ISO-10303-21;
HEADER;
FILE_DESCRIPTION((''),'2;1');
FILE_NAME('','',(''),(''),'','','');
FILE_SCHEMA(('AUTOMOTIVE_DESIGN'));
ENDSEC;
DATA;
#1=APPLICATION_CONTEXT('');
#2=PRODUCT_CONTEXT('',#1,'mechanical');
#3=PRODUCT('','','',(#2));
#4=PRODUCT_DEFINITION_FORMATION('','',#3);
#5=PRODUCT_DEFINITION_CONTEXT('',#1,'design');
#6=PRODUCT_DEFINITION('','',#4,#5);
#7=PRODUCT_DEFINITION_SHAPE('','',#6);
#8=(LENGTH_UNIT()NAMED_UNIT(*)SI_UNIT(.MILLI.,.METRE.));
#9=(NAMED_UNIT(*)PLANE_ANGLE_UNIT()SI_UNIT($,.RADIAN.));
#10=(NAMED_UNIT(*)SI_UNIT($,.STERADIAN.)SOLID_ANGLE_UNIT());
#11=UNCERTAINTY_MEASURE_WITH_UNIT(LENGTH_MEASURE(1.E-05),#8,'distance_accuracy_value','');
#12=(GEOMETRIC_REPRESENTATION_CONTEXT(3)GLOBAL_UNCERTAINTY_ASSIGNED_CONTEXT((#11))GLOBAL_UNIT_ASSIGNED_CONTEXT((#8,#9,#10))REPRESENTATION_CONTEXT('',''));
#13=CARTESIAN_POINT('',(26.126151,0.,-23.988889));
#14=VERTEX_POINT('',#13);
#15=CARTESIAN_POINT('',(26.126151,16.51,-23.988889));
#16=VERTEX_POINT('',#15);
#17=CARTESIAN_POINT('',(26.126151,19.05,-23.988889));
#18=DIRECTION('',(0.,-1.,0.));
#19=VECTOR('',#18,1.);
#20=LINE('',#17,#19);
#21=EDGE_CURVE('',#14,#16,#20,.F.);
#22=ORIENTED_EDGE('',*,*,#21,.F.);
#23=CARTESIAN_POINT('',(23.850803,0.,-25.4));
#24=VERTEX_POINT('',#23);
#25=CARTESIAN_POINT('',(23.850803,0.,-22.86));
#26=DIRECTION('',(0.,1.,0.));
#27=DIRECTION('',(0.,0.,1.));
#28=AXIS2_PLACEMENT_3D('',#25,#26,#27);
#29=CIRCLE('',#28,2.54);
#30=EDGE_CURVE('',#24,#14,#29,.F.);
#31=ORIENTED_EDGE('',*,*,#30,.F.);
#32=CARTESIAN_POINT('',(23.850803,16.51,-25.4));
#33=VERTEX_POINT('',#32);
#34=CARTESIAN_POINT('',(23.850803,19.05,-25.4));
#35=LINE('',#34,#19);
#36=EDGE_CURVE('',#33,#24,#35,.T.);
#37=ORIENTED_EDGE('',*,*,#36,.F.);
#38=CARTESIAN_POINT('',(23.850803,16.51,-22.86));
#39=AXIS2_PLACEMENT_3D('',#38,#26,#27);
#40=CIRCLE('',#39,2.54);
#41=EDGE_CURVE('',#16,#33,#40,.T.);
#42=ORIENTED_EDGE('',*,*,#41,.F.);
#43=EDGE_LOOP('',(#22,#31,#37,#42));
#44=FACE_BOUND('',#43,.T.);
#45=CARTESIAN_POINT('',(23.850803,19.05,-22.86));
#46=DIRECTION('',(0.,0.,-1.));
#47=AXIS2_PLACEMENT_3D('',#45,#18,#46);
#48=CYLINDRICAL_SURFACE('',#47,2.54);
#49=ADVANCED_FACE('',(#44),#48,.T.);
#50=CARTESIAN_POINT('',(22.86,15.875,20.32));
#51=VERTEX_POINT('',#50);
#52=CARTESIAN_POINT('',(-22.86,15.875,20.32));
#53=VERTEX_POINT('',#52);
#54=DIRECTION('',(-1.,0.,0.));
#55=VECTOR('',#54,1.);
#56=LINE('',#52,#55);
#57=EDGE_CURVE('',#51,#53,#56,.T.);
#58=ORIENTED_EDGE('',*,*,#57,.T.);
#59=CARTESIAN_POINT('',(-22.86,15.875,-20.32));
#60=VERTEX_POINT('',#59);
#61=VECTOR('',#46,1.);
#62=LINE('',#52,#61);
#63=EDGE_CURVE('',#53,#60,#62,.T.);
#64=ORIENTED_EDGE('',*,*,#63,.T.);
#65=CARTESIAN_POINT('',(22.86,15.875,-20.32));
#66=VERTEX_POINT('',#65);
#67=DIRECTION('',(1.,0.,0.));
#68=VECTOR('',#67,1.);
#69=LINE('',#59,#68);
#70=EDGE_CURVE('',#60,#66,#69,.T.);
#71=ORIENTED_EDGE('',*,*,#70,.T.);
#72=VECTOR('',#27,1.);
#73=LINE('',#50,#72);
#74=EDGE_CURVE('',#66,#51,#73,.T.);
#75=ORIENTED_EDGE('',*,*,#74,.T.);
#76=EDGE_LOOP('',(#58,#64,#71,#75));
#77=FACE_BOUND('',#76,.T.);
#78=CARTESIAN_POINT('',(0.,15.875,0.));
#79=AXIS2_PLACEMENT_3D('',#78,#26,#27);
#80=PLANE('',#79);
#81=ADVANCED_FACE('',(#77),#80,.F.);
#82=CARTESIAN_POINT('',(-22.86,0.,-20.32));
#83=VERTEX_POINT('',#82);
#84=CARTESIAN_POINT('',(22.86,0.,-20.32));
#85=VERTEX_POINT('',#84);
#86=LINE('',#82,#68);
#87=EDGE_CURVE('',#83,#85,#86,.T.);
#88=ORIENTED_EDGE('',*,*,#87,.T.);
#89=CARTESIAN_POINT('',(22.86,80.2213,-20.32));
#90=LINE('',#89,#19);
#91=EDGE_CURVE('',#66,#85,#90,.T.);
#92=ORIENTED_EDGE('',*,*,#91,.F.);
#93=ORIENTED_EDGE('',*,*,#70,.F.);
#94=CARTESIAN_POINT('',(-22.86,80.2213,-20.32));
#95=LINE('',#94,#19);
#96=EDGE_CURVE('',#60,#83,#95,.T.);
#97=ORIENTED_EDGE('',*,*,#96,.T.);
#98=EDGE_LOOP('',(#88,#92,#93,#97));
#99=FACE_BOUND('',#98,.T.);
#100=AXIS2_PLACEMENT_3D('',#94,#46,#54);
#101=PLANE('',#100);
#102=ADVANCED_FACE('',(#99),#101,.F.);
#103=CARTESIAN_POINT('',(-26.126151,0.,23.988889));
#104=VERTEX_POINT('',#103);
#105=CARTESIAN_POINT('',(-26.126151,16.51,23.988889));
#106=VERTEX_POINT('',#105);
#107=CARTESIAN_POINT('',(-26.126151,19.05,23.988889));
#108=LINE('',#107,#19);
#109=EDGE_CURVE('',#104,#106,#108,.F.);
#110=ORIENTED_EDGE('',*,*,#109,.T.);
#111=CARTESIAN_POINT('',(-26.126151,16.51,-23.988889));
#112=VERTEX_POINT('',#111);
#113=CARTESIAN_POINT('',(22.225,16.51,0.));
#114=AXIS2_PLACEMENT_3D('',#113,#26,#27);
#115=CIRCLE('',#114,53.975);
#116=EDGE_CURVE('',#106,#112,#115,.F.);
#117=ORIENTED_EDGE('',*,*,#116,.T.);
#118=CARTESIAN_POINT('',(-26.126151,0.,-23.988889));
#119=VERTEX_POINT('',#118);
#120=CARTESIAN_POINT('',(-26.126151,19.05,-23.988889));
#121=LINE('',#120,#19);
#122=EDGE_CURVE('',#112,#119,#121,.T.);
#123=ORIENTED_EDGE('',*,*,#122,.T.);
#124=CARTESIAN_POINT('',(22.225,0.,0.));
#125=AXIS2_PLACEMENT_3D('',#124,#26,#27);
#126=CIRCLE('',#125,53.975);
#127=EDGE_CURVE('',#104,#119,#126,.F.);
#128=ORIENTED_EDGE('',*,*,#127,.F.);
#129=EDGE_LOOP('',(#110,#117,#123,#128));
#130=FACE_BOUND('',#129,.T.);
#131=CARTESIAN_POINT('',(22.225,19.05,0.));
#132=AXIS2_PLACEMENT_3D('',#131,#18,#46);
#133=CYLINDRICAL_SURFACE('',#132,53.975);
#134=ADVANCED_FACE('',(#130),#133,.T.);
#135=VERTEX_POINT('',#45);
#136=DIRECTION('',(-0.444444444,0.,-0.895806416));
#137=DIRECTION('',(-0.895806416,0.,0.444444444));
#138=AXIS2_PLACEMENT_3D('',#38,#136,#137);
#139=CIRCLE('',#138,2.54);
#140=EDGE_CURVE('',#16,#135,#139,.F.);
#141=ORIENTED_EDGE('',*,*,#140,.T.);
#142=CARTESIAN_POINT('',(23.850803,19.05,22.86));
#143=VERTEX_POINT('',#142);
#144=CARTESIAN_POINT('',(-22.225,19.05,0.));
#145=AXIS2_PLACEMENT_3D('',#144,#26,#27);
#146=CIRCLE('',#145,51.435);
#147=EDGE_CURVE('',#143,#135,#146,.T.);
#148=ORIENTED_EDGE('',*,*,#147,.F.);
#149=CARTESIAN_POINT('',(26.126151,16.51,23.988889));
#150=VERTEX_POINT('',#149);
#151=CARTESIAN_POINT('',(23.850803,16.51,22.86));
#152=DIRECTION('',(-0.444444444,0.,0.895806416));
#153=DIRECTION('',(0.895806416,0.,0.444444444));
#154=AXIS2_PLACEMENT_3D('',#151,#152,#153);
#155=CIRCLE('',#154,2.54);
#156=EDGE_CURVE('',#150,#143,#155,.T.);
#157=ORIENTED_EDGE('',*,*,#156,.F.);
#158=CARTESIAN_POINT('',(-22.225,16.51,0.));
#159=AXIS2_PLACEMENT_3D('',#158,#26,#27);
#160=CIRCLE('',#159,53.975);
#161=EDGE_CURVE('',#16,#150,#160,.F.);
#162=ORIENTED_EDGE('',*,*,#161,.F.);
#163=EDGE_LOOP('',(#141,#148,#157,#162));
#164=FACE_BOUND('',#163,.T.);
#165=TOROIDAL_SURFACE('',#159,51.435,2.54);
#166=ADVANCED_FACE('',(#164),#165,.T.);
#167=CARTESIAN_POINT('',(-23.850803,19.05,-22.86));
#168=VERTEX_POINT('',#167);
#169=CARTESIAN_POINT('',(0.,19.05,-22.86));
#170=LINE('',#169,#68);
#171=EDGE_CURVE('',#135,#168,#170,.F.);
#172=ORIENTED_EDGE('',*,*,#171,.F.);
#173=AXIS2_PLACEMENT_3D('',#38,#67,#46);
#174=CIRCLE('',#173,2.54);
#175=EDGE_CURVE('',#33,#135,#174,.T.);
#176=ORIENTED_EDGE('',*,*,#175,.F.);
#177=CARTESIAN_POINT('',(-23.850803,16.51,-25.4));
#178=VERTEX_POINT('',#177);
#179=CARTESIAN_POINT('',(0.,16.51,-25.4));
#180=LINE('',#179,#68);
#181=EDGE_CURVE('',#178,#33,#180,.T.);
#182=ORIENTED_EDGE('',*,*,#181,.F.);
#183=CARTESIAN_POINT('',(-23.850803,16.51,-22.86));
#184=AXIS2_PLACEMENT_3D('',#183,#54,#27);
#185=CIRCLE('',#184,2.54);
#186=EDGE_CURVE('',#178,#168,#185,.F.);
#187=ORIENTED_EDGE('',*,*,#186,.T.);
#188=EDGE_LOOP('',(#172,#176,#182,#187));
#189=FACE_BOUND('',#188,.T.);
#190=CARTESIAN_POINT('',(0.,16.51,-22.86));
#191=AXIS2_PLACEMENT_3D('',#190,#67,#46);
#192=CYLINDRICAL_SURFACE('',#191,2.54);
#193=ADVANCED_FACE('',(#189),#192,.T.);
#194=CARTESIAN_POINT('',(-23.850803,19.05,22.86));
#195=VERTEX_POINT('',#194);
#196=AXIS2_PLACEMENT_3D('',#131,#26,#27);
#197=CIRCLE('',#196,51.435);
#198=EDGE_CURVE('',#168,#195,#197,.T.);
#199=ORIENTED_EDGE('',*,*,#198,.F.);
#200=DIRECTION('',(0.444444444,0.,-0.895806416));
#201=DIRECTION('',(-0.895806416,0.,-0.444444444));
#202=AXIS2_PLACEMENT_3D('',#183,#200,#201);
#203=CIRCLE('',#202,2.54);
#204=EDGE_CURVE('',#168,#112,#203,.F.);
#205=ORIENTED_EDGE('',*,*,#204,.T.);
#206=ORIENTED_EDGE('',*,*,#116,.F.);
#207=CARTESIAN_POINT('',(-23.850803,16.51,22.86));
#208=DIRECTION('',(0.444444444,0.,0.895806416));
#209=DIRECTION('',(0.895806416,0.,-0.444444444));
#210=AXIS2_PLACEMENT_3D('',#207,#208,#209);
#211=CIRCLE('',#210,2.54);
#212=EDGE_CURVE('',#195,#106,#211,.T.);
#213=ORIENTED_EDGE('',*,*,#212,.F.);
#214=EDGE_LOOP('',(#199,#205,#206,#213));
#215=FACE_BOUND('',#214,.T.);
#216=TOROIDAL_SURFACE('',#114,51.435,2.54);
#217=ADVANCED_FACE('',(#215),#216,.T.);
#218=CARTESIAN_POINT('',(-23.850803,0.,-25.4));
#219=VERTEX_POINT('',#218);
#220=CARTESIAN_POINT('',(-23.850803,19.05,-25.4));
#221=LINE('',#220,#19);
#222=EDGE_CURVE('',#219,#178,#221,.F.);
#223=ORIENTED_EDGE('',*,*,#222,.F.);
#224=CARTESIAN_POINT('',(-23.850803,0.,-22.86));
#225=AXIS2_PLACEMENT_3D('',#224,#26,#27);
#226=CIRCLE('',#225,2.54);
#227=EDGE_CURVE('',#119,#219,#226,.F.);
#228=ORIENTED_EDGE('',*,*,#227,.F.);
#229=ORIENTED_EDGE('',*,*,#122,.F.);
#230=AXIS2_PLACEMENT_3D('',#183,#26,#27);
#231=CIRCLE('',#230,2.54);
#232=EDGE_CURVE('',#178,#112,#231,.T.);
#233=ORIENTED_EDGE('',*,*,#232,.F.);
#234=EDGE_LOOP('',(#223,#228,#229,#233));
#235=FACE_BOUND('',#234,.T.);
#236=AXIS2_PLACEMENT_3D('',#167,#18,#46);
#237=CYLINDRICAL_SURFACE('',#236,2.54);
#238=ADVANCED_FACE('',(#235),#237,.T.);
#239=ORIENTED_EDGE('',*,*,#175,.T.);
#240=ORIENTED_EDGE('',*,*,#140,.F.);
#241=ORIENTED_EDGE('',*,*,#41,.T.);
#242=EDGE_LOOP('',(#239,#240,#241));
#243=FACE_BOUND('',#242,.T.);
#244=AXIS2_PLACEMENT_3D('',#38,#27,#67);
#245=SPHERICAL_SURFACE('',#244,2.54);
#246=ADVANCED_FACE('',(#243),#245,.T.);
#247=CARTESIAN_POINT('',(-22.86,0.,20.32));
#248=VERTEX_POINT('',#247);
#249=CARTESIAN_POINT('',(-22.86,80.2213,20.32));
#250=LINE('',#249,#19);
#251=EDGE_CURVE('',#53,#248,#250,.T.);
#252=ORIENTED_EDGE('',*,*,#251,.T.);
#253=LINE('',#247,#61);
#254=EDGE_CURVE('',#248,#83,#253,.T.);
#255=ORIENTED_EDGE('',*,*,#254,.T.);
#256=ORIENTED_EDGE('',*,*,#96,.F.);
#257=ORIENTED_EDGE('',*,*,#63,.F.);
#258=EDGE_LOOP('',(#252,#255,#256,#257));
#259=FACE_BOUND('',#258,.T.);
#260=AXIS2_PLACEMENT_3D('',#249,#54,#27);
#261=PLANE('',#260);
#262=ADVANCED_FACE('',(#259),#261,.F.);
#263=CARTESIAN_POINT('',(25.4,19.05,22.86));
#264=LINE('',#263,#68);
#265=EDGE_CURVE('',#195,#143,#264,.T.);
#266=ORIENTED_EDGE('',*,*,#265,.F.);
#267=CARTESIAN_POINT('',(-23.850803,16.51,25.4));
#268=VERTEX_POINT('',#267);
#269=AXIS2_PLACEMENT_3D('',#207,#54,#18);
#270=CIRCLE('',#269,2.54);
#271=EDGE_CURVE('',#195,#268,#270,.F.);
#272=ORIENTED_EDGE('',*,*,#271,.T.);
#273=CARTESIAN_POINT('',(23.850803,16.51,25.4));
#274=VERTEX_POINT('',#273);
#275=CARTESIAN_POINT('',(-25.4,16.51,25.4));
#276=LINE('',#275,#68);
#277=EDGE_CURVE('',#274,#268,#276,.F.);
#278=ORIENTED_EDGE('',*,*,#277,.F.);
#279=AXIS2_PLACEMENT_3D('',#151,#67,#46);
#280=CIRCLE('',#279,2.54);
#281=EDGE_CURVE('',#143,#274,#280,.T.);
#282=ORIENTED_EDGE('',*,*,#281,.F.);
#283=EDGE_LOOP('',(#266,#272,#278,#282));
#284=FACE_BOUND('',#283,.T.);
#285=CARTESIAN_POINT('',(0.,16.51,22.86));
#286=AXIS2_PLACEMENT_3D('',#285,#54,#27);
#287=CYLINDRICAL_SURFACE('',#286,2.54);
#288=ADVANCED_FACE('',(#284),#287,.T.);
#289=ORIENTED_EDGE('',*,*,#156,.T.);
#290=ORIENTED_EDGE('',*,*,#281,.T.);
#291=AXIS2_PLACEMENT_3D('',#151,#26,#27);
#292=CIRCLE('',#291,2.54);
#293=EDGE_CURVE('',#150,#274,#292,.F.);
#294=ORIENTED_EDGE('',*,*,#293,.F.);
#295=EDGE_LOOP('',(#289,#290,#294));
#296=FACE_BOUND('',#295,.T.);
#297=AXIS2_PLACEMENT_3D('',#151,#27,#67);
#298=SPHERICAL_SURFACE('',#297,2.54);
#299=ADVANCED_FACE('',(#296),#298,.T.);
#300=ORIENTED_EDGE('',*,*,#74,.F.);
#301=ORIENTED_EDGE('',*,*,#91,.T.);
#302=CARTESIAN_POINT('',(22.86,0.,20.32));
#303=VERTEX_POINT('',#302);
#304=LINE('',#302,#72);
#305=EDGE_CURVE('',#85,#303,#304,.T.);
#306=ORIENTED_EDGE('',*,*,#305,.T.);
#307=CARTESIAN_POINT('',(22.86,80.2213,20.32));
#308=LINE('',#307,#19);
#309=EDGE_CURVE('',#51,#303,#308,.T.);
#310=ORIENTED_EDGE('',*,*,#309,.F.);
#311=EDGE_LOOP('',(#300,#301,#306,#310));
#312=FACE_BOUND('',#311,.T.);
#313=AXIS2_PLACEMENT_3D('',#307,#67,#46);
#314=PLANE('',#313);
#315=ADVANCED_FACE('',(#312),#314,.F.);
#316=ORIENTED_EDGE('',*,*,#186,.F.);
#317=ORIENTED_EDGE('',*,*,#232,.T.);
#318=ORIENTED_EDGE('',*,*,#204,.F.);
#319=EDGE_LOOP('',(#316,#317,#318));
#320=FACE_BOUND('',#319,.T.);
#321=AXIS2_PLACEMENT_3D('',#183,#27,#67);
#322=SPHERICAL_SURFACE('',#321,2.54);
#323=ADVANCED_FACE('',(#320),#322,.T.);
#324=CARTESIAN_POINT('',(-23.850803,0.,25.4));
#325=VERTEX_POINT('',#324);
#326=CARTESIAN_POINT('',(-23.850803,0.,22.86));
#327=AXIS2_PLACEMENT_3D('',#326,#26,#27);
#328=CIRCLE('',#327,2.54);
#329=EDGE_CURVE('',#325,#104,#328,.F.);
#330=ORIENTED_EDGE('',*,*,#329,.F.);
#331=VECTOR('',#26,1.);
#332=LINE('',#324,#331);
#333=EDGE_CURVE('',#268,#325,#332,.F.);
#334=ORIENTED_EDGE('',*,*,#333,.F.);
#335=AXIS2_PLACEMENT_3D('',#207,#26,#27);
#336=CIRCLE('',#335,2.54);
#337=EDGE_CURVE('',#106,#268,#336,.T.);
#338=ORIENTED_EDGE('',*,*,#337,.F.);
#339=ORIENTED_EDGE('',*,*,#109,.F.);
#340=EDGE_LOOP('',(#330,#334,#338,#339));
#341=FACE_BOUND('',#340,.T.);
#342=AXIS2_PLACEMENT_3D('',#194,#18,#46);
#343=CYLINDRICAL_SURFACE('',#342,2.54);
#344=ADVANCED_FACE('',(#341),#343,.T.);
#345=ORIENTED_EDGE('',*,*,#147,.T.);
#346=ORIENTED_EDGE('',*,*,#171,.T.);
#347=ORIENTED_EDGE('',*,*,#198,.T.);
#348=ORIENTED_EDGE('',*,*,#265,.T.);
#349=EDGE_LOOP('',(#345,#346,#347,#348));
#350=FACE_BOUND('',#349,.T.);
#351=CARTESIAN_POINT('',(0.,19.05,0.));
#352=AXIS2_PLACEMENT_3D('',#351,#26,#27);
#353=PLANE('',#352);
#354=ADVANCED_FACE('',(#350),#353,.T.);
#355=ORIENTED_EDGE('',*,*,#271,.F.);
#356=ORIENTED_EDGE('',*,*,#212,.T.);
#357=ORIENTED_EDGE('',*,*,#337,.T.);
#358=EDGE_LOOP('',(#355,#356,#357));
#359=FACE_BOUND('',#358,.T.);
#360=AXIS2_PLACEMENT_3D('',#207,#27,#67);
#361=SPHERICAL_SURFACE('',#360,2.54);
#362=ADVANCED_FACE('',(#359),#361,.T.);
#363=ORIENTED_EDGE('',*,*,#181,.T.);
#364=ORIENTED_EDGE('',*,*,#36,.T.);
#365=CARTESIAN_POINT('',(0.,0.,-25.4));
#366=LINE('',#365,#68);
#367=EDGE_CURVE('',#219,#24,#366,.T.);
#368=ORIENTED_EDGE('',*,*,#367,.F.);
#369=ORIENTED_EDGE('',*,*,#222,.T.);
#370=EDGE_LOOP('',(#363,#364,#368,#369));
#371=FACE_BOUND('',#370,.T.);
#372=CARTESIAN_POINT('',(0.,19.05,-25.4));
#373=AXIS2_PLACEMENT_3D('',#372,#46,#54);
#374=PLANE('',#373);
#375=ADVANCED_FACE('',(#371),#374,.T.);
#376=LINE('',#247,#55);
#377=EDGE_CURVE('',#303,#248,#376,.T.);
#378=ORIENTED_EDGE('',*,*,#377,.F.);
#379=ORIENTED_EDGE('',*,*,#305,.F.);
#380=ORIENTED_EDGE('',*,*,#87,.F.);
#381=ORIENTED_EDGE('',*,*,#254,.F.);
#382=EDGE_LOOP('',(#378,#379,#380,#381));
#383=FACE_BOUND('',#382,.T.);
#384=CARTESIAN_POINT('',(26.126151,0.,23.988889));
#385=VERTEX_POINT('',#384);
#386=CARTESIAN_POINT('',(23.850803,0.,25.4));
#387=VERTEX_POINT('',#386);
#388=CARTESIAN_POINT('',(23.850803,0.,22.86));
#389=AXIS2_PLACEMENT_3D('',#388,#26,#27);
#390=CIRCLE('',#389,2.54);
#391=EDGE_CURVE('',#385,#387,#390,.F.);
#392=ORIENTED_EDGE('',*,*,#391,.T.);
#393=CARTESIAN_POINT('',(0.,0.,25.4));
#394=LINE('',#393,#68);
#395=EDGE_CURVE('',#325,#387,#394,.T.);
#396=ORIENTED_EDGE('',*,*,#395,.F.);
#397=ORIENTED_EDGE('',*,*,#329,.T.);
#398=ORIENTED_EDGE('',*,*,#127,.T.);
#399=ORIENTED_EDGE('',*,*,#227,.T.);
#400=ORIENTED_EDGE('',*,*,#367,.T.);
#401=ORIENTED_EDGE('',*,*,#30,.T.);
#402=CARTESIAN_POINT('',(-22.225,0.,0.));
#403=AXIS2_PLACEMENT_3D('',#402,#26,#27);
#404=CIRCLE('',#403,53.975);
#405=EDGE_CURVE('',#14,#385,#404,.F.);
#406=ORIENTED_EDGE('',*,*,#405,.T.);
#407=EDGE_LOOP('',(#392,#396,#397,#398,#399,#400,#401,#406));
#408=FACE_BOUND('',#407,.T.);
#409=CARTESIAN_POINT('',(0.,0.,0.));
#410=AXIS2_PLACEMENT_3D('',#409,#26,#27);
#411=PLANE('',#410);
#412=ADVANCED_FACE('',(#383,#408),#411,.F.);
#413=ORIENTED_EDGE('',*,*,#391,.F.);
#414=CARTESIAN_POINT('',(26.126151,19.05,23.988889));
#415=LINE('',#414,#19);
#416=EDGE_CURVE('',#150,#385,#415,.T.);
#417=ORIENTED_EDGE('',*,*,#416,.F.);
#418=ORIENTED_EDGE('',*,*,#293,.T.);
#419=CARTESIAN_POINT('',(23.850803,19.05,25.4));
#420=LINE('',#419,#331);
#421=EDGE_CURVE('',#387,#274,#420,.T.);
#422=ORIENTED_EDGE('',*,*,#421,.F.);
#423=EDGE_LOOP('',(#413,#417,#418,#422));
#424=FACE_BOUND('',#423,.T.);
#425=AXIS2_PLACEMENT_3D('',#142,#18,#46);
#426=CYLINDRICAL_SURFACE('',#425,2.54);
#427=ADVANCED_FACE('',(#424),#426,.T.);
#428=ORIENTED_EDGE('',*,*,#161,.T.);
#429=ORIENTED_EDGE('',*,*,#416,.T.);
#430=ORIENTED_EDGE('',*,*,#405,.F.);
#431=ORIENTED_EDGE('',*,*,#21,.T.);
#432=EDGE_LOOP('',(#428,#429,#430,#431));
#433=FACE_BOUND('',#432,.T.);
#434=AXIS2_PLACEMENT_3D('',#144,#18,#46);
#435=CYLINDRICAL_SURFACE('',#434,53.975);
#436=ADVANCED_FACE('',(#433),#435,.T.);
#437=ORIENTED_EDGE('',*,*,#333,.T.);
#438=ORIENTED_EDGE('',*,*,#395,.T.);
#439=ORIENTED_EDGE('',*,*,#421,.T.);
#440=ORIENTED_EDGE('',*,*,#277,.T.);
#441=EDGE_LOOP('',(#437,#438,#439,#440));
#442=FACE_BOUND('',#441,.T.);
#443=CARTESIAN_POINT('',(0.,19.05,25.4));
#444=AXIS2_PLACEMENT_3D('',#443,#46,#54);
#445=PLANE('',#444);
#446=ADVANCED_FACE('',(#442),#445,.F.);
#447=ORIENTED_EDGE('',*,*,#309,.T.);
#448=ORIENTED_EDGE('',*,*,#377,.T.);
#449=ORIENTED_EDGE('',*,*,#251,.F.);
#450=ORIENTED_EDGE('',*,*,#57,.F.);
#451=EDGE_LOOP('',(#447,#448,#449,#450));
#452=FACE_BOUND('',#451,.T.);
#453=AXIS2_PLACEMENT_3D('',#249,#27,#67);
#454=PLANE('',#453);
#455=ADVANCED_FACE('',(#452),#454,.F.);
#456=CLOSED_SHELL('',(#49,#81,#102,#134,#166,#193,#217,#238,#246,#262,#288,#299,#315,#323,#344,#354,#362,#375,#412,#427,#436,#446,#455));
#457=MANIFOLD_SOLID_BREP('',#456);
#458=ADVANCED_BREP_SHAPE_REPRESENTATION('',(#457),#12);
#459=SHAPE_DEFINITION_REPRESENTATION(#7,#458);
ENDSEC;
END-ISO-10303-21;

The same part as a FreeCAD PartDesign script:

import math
import FreeCAD as App
import Part
import Sketcher
from FreeCAD import Vector
Q = App.Units.Quantity


def edges_at(feature, points):
    """Names of the edges that pass closest to the given points."""
    edges = feature.Shape.Edges
    near = lambda p: min(range(len(edges)), key=lambda i: edges[i].distToShape(Part.Vertex(*p))[0])
    return sorted({f"Edge{near(p) + 1}" for p in points})


def add_polygon(sketch, points):
    """Adds a closed chain of lines whose ends are joined by coincident constraints."""
    first, n = sketch.GeometryCount, len(points)
    for a, b in zip(points, points[1:] + points[:1]):
        sketch.addGeometry(Part.LineSegment(App.Vector(*a, 0), App.Vector(*b, 0)), False)
    for i in range(n):
        sketch.addConstraint(Sketcher.Constraint("Coincident", first + i, 2, first + (i + 1) % n, 1))

doc = App.newDocument("Part")
params = doc.addObject("Spreadsheet::Sheet", "Params")
for row, (alias, value) in enumerate([
    ("sketch1_width", "2 in"),
    ("sketch1_radius", "2.125 in"),
    ("pad1_length", "0.75 in"),
    ("sketch2_width", "1.8 in"),
    ("sketch2_height", "1.6 in"),
    ("pocket1_length", "0.625 in"),
    ("fillet_radius", "0.1 in"),
], start=1):
    params.set(f"A{row}", alias)
    params.set(f"B{row}", "=" + value)
    params.setAlias(f"B{row}", alias)

body = doc.addObject("PartDesign::Body", "Body")

# Sketch on XZ plane
sketch1 = doc.addObject("Sketcher::SketchObject", "Sketch")
body.addObject(sketch1)
sketch1.AttachmentSupport = (doc.XZ_Plane, [""])
sketch1.MapMode = "FlatFace"
sketch1.addGeometry([
    Part.ArcOfCircle(Part.Circle(Vector(22, 0, 0), Vector(0, 0, 1), 54), math.radians(152), math.radians(208)),
    Part.LineSegment(Vector(-25, 25, 0), Vector(25, 25, 0)),
    Part.ArcOfCircle(Part.Circle(Vector(-22, 0, 0), Vector(0, 0, 1), 54), math.radians(-28), math.radians(28)),
    Part.LineSegment(Vector(25, -25, 0), Vector(-25, -25, 0)),
], False)
sketch1.addConstraint([
    Sketcher.Constraint("Coincident", 0, 1, 1, 1),
    Sketcher.Constraint("Coincident", 1, 2, 2, 2),
    Sketcher.Constraint("Coincident", 2, 1, 3, 1),
    Sketcher.Constraint("Coincident", 3, 2, 0, 2),
    Sketcher.Constraint("Horizontal", 1),
    Sketcher.Constraint("Horizontal", 3),
    Sketcher.Constraint("Equal", 0, 2),
    Sketcher.Constraint("Symmetric", 0, 3, 2, 3, -1, 1),
    Sketcher.Constraint("Symmetric", 1, 2, 2, 1, -1),
    Sketcher.Constraint("DistanceX", 1, 1, 1, 2, Q("2 in")),
    Sketcher.Constraint("DistanceY", -1, 1, 0, 1, Q("1 in")),
    Sketcher.Constraint("Radius", 0, Q("2.125 in")),
])
sketch1.setExpression("Constraints[9]", "Params.sketch1_width")
sketch1.setExpression("Constraints[11]", "Params.sketch1_radius")
pad1 = doc.addObject("PartDesign::Pad", "Pad")
body.addObject(pad1)
pad1.Profile = sketch1
pad1.setExpression("Length", "Params.pad1_length")
pad1.Reversed = True

# Sketch on XZ plane
sketch2 = doc.addObject("Sketcher::SketchObject", "Sketch001")
body.addObject(sketch2)
sketch2.AttachmentSupport = (doc.XZ_Plane, [""])
sketch2.MapMode = "FlatFace"
add_polygon(sketch2, [(-23, 20), (-23, -20), (23, -20), (23, 20)])  # lines 0-3
sketch2.addConstraint([
    Sketcher.Constraint("Vertical", 0),
    Sketcher.Constraint("Horizontal", 1),
    Sketcher.Constraint("Vertical", 2),
    Sketcher.Constraint("Horizontal", 3),
    Sketcher.Constraint("Symmetric", 0, 2, 2, 2, -1, 1),
    Sketcher.Constraint("DistanceX", 1, 1, 1, 2, Q("1.8 in")),
    Sketcher.Constraint("DistanceY", 0, 2, 0, 1, Q("1.6 in")),
])
sketch2.setExpression("Constraints[9]", "Params.sketch2_width")
sketch2.setExpression("Constraints[10]", "Params.sketch2_height")
pocket1 = doc.addObject("PartDesign::Pocket", "Pocket")
body.addObject(pocket1)
pocket1.Profile = sketch2
pocket1.setExpression("Length", "Params.pocket1_length")
doc.recompute()

fillet = doc.addObject("PartDesign::Fillet", "Fillet")
body.addObject(fillet)
fillet.Base = (pocket1, edges_at(pocket1, [
    (31.75, 19.05, 0),
    (0, 19.05, -25.4),
    (-31.75, 19.05, 0),
    (0, 19.05, 25.4),
    (-25.4, 9.525, -25.4),
    (25.4, 9.525, -25.4),
    (25.4, 9.525, 25.4),
    (-25.4, 9.525, 25.4),
]))
fillet.setExpression("Radius", "Params.fillet_radius")

doc.recompute()
